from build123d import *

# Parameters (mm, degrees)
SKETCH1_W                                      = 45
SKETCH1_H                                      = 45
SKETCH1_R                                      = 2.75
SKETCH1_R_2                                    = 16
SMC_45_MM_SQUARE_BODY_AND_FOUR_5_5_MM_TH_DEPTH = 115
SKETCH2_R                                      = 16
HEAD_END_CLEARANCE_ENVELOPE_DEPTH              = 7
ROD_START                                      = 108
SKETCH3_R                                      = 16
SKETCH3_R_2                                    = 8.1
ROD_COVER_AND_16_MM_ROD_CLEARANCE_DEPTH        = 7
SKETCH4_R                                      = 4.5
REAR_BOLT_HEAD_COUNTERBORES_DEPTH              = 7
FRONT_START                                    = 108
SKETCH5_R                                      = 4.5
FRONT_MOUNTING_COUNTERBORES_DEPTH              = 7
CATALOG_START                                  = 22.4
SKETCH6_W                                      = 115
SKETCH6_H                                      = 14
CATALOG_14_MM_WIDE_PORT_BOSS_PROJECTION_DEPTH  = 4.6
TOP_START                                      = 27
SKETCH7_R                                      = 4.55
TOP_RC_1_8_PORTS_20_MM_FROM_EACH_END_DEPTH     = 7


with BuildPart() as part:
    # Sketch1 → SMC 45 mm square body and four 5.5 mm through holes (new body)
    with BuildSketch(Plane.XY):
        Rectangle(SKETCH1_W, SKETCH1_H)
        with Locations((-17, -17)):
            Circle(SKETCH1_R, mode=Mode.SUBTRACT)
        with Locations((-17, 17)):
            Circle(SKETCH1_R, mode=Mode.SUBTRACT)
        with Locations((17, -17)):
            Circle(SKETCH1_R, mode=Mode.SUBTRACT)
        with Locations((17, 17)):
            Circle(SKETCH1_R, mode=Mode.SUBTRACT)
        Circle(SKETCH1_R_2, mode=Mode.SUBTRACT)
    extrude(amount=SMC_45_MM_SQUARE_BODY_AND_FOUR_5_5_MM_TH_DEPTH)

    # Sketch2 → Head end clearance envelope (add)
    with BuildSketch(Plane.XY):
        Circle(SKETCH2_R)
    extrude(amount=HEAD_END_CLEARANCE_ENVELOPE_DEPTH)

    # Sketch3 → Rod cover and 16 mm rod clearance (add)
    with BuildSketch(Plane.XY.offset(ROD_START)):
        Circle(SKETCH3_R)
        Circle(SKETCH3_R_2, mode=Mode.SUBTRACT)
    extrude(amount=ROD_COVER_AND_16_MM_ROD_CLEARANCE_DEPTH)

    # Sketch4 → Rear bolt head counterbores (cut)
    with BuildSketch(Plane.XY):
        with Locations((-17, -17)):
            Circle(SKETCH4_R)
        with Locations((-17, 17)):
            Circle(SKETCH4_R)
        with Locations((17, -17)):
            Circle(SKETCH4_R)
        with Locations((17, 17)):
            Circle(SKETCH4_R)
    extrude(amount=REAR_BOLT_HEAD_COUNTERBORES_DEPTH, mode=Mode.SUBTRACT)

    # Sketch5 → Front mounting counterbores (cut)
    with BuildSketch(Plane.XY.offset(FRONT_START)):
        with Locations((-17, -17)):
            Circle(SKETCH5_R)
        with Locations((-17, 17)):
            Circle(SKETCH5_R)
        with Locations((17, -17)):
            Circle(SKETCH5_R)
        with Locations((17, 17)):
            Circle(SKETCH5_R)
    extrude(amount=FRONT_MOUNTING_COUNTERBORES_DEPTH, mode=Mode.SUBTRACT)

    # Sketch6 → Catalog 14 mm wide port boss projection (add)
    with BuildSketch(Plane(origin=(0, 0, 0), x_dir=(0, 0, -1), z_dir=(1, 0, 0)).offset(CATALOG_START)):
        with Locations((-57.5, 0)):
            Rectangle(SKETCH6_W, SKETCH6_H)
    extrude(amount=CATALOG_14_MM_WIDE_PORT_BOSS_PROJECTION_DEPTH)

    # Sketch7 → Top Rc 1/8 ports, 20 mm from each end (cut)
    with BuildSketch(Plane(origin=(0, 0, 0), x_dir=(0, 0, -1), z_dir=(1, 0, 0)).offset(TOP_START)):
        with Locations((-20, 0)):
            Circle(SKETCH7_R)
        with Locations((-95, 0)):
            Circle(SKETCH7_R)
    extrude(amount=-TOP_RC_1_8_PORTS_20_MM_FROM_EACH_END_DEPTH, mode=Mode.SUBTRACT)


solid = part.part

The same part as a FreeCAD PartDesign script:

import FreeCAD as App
import Part
import Sketcher
from FreeCAD import Vector
Q = App.Units.Quantity

doc = App.newDocument("Part")
params = doc.addObject("Spreadsheet::Sheet", "Params")
for row, (alias, value) in enumerate([
    ("sketch1_diameter", "32 mm"),
    ("sketch1_diameter2", "5.5 mm"),
    ("sketch1_width", "45 mm"),
    ("pad1_length", "115 mm"),
    ("sketch2_diameter", "32 mm"),
    ("pad2_length", "7 mm"),
    ("sketch3_diameter", "32 mm"),
    ("sketch3_diameter2", "16.2 mm"),
    ("pad3_length", "7 mm"),
    ("sketch4_diameter", "9 mm"),
    ("pocket1_length", "7 mm"),
    ("sketch5_diameter", "9 mm"),
    ("pocket2_length", "7 mm"),
    ("sketch6_width", "14 mm"),
    ("sketch6_height", "115 mm"),
    ("pad4_length", "4.6 mm"),
    ("sketch7_diameter", "9.1 mm"),
    ("pocket3_length", "7 mm"),
], start=1):
    params.set(f"A{row}", alias)
    params.set(f"B{row}", "=" + value)
    params.setAlias(f"B{row}", alias)

body = doc.addObject("PartDesign::Body", "Body")

# Sketch on XY plane
sketch1 = body.newObject("Sketcher::SketchObject", "Sketch")
sketch1.AttachmentSupport = (doc.getObject("XY_Plane"), [""])
sketch1.MapMode = "FlatFace"
sketch1.addGeometry([
    Part.LineSegment(Vector(-22.5, 22.5, 0), Vector(-22.5, -22.5, 0)),  # 0
    Part.LineSegment(Vector(-22.5, -22.5, 0), Vector(22.5, -22.5, 0)),  # 1
    Part.LineSegment(Vector(22.5, -22.5, 0), Vector(22.5, 22.5, 0)),  # 2
    Part.LineSegment(Vector(22.5, 22.5, 0), Vector(-22.5, 22.5, 0)),  # 3
    Part.Circle(Vector(-17, -17, 0), Vector(0, 0, 1), 2.8),  # 4
    Part.Circle(Vector(17, -17, 0), Vector(0, 0, 1), 2.8),  # 5
    Part.Circle(Vector(-17, 17, 0), Vector(0, 0, 1), 2.8),  # 6
    Part.Circle(Vector(0, 0, 0), Vector(0, 0, 1), 16),  # 7
    Part.Circle(Vector(17, 17, 0), Vector(0, 0, 1), 2.8),  # 8
], False)
sketch1.addConstraint([
    Sketcher.Constraint("Coincident", 0, 2, 1, 1),
    Sketcher.Constraint("Coincident", 1, 2, 2, 1),
    Sketcher.Constraint("Coincident", 2, 2, 3, 1),
    Sketcher.Constraint("Coincident", 3, 2, 0, 1),
    Sketcher.Constraint("Vertical", 0),
    Sketcher.Constraint("Horizontal", 1),
    Sketcher.Constraint("Vertical", 2),
    Sketcher.Constraint("Horizontal", 3),
    Sketcher.Constraint("Coincident", 7, 3, -1, 1),
    Sketcher.Constraint("Equal", 4, 5),
    Sketcher.Constraint("Equal", 5, 6),
    Sketcher.Constraint("Equal", 6, 8),
    Sketcher.Constraint("Symmetric", 5, 3, 6, 3, -1, 1),
    Sketcher.Constraint("Symmetric", 4, 3, 8, 3, -1, 1),
    Sketcher.Constraint("Symmetric", 0, 2, 2, 2, -1, 1),
    Sketcher.Constraint("Symmetric", 4, 3, 5, 3, -2),
    Sketcher.Constraint("Equal", 3, 0),
    Sketcher.Constraint("Diameter", 7, Q("32 mm")),
    Sketcher.Constraint("Diameter", 4, Q("5.5 mm")),
    Sketcher.Constraint("DistanceX", 1, 1, 1, 2, Q("45 mm")),
    Sketcher.Constraint("DistanceX", 4, 3, -1, 1, Q("17 mm")),
    Sketcher.Constraint("DistanceY", 4, 3, -1, 1, Q("17 mm")),
])
sketch1.setExpression("Constraints[17]", "Params.sketch1_diameter")
sketch1.setExpression("Constraints[18]", "Params.sketch1_diameter2")
sketch1.setExpression("Constraints[19]", "Params.sketch1_width")
pad1 = body.newObject("PartDesign::Pad", "Pad")
pad1.Profile = sketch1
pad1.setExpression("Length", "Params.pad1_length")

# Sketch on XY plane
sketch2 = body.newObject("Sketcher::SketchObject", "Sketch001")
sketch2.AttachmentSupport = (doc.getObject("XY_Plane"), [""])
sketch2.MapMode = "FlatFace"
sketch2.addGeometry(Part.Circle(Vector(0, 0, 0), Vector(0, 0, 1), 16), False)
sketch2.addConstraint([
    Sketcher.Constraint("Coincident", 0, 3, -1, 1),
    Sketcher.Constraint("Diameter", 0, Q("32 mm")),
])
sketch2.setExpression("Constraints[1]", "Params.sketch2_diameter")
pad2 = body.newObject("PartDesign::Pad", "Pad001")
pad2.Profile = sketch2
pad2.setExpression("Length", "Params.pad2_length")

# Sketch on XY plane
sketch3 = body.newObject("Sketcher::SketchObject", "Sketch002")
sketch3.AttachmentSupport = (doc.getObject("XY_Plane"), [""])
sketch3.MapMode = "FlatFace"
sketch3.AttachmentOffset = App.Placement(Vector(0, 0, 108), App.Rotation())
sketch3.addGeometry([
    Part.Circle(Vector(0, 0, 0), Vector(0, 0, 1), 16),
    Part.Circle(Vector(0, 0, 0), Vector(0, 0, 1), 8),
], False)
sketch3.addConstraint([
    Sketcher.Constraint("Coincident", 0, 3, -1, 1),
    Sketcher.Constraint("Coincident", 1, 3, -1, 1),
    Sketcher.Constraint("Diameter", 0, Q("32 mm")),
    Sketcher.Constraint("Diameter", 1, Q("16.2 mm")),
])
sketch3.setExpression("Constraints[2]", "Params.sketch3_diameter")
sketch3.setExpression("Constraints[3]", "Params.sketch3_diameter2")
pad3 = body.newObject("PartDesign::Pad", "Pad002")
pad3.Profile = sketch3
pad3.setExpression("Length", "Params.pad3_length")

# Sketch on XY plane
sketch4 = body.newObject("Sketcher::SketchObject", "Sketch003")
sketch4.AttachmentSupport = (doc.getObject("XY_Plane"), [""])
sketch4.MapMode = "FlatFace"
sketch4.addGeometry([
    Part.Circle(Vector(-17, -17, 0), Vector(0, 0, 1), 4.5),
    Part.Circle(Vector(-17, 17, 0), Vector(0, 0, 1), 4.5),
    Part.Circle(Vector(17, -17, 0), Vector(0, 0, 1), 4.5),
    Part.Circle(Vector(17, 17, 0), Vector(0, 0, 1), 4.5),
], False)
sketch4.addConstraint([
    Sketcher.Constraint("Equal", 0, 1),
    Sketcher.Constraint("Equal", 1, 2),
    Sketcher.Constraint("Equal", 2, 3),
    Sketcher.Constraint("Symmetric", 1, 3, 2, 3, -1, 1),
    Sketcher.Constraint("Symmetric", 0, 3, 3, 3, -1, 1),
    Sketcher.Constraint("Symmetric", 0, 3, 2, 3, -2),
    Sketcher.Constraint("Diameter", 0, Q("9 mm")),
    Sketcher.Constraint("DistanceX", 0, 3, -1, 1, Q("17 mm")),
    Sketcher.Constraint("DistanceY", 0, 3, -1, 1, Q("17 mm")),
])
sketch4.setExpression("Constraints[6]", "Params.sketch4_diameter")
pocket1 = body.newObject("PartDesign::Pocket", "Pocket")
pocket1.Profile = sketch4
pocket1.setExpression("Length", "Params.pocket1_length")
pocket1.Reversed = True

# Sketch on XY plane
sketch5 = body.newObject("Sketcher::SketchObject", "Sketch004")
sketch5.AttachmentSupport = (doc.getObject("XY_Plane"), [""])
sketch5.MapMode = "FlatFace"
sketch5.AttachmentOffset = App.Placement(Vector(0, 0, 108), App.Rotation())
sketch5.addGeometry([
    Part.Circle(Vector(-17, -17, 0), Vector(0, 0, 1), 4.5),
    Part.Circle(Vector(-17, 17, 0), Vector(0, 0, 1), 4.5),
    Part.Circle(Vector(17, -17, 0), Vector(0, 0, 1), 4.5),
    Part.Circle(Vector(17, 17, 0), Vector(0, 0, 1), 4.5),
], False)
sketch5.addConstraint([
    Sketcher.Constraint("Equal", 0, 1),
    Sketcher.Constraint("Equal", 1, 2),
    Sketcher.Constraint("Equal", 2, 3),
    Sketcher.Constraint("Symmetric", 1, 3, 2, 3, -1, 1),
    Sketcher.Constraint("Symmetric", 0, 3, 3, 3, -1, 1),
    Sketcher.Constraint("Symmetric", 0, 3, 2, 3, -2),
    Sketcher.Constraint("Diameter", 0, Q("9 mm")),
    Sketcher.Constraint("DistanceX", 0, 3, -1, 1, Q("17 mm")),
    Sketcher.Constraint("DistanceY", 0, 3, -1, 1, Q("17 mm")),
])
sketch5.setExpression("Constraints[6]", "Params.sketch5_diameter")
pocket2 = body.newObject("PartDesign::Pocket", "Pocket001")
pocket2.Profile = sketch5
pocket2.setExpression("Length", "Params.pocket2_length")
pocket2.Reversed = True

# Sketch on YZ plane
sketch6 = body.newObject("Sketcher::SketchObject", "Sketch005")
sketch6.AttachmentSupport = (doc.getObject("YZ_Plane"), [""])
sketch6.MapMode = "FlatFace"
sketch6.AttachmentOffset = App.Placement(Vector(0, 0, 22.4), App.Rotation())
sketch6.addGeometry([
    Part.LineSegment(Vector(7, 115, 0), Vector(-7, 115, 0)),
    Part.LineSegment(Vector(-7, 115, 0), Vector(-7, 0, 0)),
    Part.LineSegment(Vector(-7, 0, 0), Vector(7, 0, 0)),
    Part.LineSegment(Vector(7, 0, 0), Vector(7, 115, 0)),
], False)
sketch6.addConstraint([
    Sketcher.Constraint("Coincident", 0, 2, 1, 1),
    Sketcher.Constraint("Coincident", 1, 2, 2, 1),
    Sketcher.Constraint("Coincident", 2, 2, 3, 1),
    Sketcher.Constraint("Coincident", 3, 2, 0, 1),
    Sketcher.Constraint("Horizontal", 0),
    Sketcher.Constraint("Vertical", 1),
    Sketcher.Constraint("Horizontal", 2),
    Sketcher.Constraint("Vertical", 3),
    Sketcher.Constraint("Symmetric", 1, 2, 2, 2, -1, 1),
    Sketcher.Constraint("DistanceX", 0, 2, 0, 1, Q("14 mm")),
    Sketcher.Constraint("DistanceY", 1, 2, 1, 1, Q("115 mm")),
])
sketch6.setExpression("Constraints[9]", "Params.sketch6_width")
sketch6.setExpression("Constraints[10]", "Params.sketch6_height")
pad4 = body.newObject("PartDesign::Pad", "Pad003")
pad4.Profile = sketch6
pad4.setExpression("Length", "Params.pad4_length")

# Sketch on YZ plane
sketch7 = body.newObject("Sketcher::SketchObject", "Sketch006")
sketch7.AttachmentSupport = (doc.getObject("YZ_Plane"), [""])
sketch7.MapMode = "FlatFace"
sketch7.AttachmentOffset = App.Placement(Vector(0, 0, 27), App.Rotation())
sketch7.addGeometry([
    Part.Circle(Vector(0, 20, 0), Vector(0, 0, 1), 4.5),
    Part.Circle(Vector(0, 95, 0), Vector(0, 0, 1), 4.5),
], False)
sketch7.addConstraint([
    Sketcher.Constraint("Equal", 0, 1),
    Sketcher.Constraint("PointOnObject", 0, 3, -2),
    Sketcher.Constraint("PointOnObject", 1, 3, -2),
    Sketcher.Constraint("Diameter", 0, Q("9.1 mm")),
    Sketcher.Constraint("DistanceY", -1, 1, 0, 3, Q("20 mm")),
    Sketcher.Constraint("DistanceY", -1, 1, 1, 3, Q("95 mm")),
])
sketch7.setExpression("Constraints[3]", "Params.sketch7_diameter")
pocket3 = body.newObject("PartDesign::Pocket", "Pocket002")
pocket3.Profile = sketch7
pocket3.setExpression("Length", "Params.pocket3_length")

doc.recompute()
